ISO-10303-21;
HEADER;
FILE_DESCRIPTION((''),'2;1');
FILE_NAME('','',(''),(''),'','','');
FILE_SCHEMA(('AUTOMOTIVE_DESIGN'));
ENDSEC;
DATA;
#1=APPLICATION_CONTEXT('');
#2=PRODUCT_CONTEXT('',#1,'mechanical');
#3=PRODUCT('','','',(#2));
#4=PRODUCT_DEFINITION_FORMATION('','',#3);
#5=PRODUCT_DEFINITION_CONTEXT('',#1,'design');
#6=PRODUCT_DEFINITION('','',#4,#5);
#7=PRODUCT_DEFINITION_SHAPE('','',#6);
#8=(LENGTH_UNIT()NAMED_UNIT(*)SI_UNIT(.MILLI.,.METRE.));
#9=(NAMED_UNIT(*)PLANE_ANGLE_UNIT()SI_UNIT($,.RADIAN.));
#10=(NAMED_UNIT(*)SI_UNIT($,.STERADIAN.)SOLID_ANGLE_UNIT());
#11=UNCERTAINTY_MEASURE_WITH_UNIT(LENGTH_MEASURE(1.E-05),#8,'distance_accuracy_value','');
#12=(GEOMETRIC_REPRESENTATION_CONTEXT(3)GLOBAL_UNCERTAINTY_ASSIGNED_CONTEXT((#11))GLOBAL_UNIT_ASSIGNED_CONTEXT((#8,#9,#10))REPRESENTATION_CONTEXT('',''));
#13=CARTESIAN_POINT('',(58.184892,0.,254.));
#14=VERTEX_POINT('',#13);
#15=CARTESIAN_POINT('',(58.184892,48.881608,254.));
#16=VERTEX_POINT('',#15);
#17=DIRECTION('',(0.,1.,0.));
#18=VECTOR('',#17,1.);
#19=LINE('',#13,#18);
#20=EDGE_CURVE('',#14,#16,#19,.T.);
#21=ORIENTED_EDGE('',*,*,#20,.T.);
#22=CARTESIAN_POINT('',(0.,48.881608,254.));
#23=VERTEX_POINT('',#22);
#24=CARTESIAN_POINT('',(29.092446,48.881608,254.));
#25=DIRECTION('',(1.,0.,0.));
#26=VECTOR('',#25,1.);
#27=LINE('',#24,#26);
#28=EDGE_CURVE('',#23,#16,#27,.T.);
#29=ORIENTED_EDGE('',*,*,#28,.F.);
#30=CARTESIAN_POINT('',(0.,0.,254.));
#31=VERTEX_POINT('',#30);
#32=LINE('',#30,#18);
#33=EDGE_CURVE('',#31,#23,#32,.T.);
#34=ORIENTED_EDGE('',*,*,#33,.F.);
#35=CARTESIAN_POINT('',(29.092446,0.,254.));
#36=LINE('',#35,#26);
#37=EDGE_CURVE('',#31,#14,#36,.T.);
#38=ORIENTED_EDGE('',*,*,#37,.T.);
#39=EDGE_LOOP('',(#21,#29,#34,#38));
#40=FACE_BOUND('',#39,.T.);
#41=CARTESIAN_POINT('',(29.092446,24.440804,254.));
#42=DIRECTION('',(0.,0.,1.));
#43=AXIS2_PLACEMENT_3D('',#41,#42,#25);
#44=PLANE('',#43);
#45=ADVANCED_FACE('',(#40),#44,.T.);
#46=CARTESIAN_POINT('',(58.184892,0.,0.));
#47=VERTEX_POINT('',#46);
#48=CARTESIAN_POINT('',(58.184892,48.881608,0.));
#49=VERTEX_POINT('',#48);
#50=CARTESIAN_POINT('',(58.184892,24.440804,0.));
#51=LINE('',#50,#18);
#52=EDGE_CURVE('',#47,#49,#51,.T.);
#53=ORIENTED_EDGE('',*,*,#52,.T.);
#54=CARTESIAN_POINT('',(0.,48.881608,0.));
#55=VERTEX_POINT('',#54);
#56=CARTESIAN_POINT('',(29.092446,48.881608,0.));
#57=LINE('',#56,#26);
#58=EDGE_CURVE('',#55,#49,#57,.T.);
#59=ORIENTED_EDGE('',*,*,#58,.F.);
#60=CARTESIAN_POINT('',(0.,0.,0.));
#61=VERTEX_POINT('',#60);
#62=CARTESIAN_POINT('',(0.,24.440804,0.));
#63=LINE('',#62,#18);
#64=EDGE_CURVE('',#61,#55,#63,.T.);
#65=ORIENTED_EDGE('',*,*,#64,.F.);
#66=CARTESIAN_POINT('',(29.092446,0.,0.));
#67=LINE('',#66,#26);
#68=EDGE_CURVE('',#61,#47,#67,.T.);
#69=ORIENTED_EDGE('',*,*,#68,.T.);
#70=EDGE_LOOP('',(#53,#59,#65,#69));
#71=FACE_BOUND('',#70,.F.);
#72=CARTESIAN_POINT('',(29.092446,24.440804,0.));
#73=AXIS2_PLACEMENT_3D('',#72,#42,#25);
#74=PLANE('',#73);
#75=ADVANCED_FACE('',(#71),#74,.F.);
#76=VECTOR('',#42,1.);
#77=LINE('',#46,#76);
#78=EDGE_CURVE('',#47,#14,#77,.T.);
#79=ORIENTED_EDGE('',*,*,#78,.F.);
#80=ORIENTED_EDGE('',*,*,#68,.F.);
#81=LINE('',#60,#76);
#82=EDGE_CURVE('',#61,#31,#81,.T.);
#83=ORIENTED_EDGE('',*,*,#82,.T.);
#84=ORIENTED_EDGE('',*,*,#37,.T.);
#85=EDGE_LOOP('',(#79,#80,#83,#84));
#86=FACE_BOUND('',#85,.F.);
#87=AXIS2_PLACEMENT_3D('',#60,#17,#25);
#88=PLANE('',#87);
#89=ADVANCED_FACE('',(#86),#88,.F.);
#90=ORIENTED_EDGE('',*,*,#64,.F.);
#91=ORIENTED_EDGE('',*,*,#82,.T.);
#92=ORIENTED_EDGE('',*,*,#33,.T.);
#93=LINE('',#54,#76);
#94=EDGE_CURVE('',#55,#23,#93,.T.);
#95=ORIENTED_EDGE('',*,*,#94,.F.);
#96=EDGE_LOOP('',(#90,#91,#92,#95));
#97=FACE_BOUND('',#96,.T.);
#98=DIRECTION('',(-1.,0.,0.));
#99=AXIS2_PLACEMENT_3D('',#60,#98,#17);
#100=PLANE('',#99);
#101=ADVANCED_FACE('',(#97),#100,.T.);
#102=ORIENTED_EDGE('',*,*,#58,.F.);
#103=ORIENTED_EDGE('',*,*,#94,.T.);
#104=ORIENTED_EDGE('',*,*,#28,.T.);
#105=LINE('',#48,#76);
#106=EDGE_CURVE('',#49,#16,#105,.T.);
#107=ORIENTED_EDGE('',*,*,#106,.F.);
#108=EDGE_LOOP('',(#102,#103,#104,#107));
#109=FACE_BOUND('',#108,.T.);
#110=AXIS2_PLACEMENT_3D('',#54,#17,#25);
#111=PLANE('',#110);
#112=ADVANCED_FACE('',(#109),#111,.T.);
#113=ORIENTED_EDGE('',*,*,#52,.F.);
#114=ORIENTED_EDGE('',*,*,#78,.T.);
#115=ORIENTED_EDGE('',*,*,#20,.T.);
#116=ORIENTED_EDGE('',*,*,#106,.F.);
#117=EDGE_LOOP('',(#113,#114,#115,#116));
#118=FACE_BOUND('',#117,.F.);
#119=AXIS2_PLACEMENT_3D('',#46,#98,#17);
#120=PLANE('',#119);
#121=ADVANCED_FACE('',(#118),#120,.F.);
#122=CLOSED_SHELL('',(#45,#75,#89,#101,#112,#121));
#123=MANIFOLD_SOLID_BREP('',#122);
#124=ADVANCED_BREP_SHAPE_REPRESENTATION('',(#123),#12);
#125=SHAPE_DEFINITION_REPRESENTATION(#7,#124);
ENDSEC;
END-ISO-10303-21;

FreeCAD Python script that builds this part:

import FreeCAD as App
import Part
import Sketcher
Q = App.Units.Quantity


def add_polygon(sketch, points):
    """Adds a closed chain of lines whose ends are joined by coincident constraints."""
    first, n = sketch.GeometryCount, len(points)
    for a, b in zip(points, points[1:] + points[:1]):
        sketch.addGeometry(Part.LineSegment(App.Vector(*a, 0), App.Vector(*b, 0)), False)
    for i in range(n):
        sketch.addConstraint(Sketcher.Constraint("Coincident", first + i, 2, first + (i + 1) % n, 1))

doc = App.newDocument("Part")
body = doc.addObject("PartDesign::Body", "Body")

# Sketch on XY plane
sketch1 = doc.addObject("Sketcher::SketchObject", "Sketch")
body.addObject(sketch1)
sketch1.AttachmentSupport = (doc.XY_Plane, [""])
sketch1.MapMode = "FlatFace"
add_polygon(sketch1, [(0, 49), (0, 0), (58, 0), (58, 49)])  # lines 0-3
sketch1.addConstraint([
    Sketcher.Constraint("Vertical", 0),
    Sketcher.Constraint("Horizontal", 1),
    Sketcher.Constraint("Vertical", 2),
    Sketcher.Constraint("Horizontal", 3),
    Sketcher.Constraint("Coincident", 0, 2, -1, 1),
    Sketcher.Constraint("DistanceX", 1, 1, 1, 2, 58.184892),
    Sketcher.Constraint("DistanceY", 0, 2, 0, 1, 48.881609),
])
pad1 = doc.addObject("PartDesign::Pad", "Pad")
body.addObject(pad1)
pad1.Profile = sketch1
pad1.Length = Q("10 in")

# Sketch on XY plane
sketch2 = doc.addObject("Sketcher::SketchObject", "Sketch001")
body.addObject(sketch2)
sketch2.AttachmentSupport = (doc.XY_Plane, [""])
sketch2.MapMode = "FlatFace"
sketch2.AttachmentOffset = App.Placement(App.Vector(0, 0, 10 * 25.4), App.Rotation())
add_polygon(sketch2, [(0, 49), (0, 0), (58, 0), (58, 49)])  # lines 0-3
sketch2.addConstraint([
    Sketcher.Constraint("Vertical", 0),
    Sketcher.Constraint("Horizontal", 1),
    Sketcher.Constraint("Vertical", 2),
    Sketcher.Constraint("Horizontal", 3),
    Sketcher.Constraint("Coincident", 0, 2, -1, 1),
    Sketcher.Constraint("DistanceX", 1, 1, 1, 2, 58.184892),
    Sketcher.Constraint("DistanceY", 0, 2, 0, 1, 48.881608),
])
pad2 = doc.addObject("PartDesign::Pad", "Pad001")
body.addObject(pad2)
pad2.Profile = sketch2
pad2.Length = Q("5 in")
pad2.Reversed = True

doc.recompute()
